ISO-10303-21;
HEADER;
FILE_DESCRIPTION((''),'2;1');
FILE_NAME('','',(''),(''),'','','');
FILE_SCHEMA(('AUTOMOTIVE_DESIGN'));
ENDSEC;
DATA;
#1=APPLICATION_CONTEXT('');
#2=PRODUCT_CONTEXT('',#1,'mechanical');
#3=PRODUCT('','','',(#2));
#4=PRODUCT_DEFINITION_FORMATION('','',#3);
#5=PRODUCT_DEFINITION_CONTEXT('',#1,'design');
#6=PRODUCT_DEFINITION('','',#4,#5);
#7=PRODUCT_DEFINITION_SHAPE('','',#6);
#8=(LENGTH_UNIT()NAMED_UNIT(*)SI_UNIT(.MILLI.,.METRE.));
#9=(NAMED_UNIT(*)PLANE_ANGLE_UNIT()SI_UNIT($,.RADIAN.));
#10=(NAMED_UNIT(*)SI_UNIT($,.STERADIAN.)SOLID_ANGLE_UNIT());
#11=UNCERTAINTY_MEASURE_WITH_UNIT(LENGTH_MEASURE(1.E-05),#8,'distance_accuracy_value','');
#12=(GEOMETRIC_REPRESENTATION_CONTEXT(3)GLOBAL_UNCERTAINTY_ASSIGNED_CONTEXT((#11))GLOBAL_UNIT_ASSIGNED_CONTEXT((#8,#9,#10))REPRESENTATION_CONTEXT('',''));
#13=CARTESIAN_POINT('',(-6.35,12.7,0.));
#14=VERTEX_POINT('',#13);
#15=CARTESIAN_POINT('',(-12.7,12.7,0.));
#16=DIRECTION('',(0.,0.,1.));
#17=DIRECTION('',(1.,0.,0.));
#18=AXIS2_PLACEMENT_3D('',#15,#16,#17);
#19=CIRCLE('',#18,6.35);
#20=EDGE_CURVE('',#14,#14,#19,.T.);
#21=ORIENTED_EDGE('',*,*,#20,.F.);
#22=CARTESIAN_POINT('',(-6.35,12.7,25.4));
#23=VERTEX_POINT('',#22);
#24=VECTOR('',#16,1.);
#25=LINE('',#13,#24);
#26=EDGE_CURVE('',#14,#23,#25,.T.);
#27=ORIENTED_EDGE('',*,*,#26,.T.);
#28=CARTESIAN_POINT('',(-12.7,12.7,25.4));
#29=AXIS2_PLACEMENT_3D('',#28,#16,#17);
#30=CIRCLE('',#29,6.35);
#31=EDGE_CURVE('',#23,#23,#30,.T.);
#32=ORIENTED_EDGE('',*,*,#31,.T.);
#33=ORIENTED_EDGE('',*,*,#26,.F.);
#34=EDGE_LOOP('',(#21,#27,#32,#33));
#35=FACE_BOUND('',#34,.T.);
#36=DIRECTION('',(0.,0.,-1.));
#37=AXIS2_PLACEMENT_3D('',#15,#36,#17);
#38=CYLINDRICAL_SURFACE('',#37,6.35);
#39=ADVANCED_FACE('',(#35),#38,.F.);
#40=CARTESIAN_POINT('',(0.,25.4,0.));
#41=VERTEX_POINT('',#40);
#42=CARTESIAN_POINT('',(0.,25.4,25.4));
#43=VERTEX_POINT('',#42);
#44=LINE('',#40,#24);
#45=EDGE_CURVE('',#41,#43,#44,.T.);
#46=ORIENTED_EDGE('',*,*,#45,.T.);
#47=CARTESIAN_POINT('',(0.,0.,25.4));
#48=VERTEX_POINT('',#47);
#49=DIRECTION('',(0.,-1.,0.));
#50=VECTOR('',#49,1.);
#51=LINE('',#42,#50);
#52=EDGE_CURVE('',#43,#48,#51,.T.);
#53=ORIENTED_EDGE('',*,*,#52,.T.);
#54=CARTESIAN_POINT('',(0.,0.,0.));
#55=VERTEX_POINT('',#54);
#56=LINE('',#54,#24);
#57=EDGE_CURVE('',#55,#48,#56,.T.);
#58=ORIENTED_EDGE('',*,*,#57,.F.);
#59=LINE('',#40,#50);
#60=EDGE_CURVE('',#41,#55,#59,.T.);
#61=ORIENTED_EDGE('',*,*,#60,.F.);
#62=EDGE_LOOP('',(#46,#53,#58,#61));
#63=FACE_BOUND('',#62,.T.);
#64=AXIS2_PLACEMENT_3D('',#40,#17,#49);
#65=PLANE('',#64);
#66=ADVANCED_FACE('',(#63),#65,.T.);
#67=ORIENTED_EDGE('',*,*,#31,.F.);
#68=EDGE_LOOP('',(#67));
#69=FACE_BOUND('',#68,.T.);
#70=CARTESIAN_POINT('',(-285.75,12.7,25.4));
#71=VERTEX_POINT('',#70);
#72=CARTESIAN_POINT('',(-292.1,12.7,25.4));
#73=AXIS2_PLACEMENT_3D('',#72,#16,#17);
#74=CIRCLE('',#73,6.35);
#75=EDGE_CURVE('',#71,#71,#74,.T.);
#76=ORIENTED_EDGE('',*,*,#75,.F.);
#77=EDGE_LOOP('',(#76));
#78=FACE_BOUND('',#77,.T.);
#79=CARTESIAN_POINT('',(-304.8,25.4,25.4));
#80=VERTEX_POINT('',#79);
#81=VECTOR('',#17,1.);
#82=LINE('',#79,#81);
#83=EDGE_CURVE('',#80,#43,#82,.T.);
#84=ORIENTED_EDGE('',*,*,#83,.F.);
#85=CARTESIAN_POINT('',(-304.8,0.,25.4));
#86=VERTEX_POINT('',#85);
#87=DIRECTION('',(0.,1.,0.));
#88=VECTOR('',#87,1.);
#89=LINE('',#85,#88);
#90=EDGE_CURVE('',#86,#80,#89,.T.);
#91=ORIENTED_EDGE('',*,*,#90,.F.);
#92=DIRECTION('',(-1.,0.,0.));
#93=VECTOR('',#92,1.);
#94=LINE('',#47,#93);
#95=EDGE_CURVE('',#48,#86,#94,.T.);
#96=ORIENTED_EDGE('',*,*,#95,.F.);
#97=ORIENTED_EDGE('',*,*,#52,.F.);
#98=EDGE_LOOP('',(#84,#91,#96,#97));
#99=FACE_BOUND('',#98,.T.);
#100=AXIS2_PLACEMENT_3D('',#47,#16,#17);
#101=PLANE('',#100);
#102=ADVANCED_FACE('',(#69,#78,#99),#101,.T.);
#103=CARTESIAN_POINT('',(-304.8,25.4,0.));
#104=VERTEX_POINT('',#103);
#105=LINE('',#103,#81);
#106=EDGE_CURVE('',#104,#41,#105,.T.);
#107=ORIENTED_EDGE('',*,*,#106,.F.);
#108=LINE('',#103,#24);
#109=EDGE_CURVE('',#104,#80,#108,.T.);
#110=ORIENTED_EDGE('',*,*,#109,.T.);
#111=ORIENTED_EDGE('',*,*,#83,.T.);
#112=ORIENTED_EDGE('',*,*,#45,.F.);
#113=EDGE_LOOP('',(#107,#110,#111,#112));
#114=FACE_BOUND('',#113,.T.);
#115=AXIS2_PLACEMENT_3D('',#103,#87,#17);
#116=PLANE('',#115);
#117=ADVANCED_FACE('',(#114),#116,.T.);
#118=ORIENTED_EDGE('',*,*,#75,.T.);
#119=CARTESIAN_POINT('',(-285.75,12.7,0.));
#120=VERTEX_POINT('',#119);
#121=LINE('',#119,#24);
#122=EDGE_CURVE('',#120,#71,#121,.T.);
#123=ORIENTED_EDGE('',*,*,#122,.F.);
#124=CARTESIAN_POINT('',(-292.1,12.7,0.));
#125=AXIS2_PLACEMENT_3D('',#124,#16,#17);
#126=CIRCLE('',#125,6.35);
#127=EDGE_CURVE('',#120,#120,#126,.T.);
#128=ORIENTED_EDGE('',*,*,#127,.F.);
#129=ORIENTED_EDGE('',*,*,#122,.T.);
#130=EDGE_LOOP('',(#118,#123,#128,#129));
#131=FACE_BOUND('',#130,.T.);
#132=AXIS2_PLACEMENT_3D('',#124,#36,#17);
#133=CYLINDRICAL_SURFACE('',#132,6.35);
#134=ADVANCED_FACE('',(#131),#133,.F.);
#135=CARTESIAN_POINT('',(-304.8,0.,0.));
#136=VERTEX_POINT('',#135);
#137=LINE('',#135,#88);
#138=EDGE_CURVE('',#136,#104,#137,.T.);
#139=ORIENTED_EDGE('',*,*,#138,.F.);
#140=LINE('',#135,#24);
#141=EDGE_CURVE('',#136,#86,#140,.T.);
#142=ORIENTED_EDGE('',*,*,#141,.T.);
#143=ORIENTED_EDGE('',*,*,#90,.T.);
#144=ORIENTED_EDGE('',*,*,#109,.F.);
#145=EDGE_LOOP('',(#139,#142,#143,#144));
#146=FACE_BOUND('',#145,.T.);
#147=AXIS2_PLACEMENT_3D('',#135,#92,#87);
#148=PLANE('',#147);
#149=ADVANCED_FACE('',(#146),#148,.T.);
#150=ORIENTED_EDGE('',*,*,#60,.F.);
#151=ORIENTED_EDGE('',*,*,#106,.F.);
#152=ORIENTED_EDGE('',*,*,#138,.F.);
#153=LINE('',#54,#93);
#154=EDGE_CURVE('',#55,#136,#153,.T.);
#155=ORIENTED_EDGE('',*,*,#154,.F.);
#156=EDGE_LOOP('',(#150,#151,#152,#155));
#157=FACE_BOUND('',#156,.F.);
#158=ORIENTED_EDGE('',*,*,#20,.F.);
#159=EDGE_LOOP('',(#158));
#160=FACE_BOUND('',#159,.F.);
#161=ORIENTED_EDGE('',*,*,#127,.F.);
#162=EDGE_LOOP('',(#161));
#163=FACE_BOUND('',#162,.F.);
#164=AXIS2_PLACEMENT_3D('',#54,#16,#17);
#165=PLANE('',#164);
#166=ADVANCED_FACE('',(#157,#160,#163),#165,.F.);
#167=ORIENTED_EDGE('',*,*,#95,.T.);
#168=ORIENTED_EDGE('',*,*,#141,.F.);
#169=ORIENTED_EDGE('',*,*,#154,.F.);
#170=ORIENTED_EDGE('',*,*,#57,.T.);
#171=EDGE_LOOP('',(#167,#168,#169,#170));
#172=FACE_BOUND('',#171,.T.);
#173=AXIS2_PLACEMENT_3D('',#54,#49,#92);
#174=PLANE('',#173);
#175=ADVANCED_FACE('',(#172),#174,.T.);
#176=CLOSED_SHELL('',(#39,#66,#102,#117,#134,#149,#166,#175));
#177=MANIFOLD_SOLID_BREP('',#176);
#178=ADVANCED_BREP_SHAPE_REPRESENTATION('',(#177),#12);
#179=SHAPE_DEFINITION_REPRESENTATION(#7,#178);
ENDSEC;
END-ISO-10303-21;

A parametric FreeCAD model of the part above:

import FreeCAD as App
import Part
import Sketcher
from FreeCAD import Vector
Q = App.Units.Quantity

doc = App.newDocument("Part")
body = doc.addObject("PartDesign::Body", "Body")

sketch1 = doc.addObject("Sketcher::SketchObject", "Sketch")
body.addObject(sketch1)
sketch1.AttachmentSupport = (doc.XY_Plane, [""])
sketch1.MapMode = "FlatFace"
sketch1.addGeometry(Part.LineSegment(Vector(-304.8, 0, 0), Vector(0, 0, 0)), False)
sketch1.addGeometry(Part.LineSegment(Vector(0, 0, 0), Vector(0, 25.4, 0)), False)
sketch1.addGeometry(Part.LineSegment(Vector(0, 25.4, 0), Vector(-304.8, 25.4, 0)), False)
sketch1.addGeometry(Part.LineSegment(Vector(-304.8, 25.4, 0), Vector(-304.8, 0, 0)), False)
sketch1.addGeometry(Part.Circle(Vector(-292.1, 12.7, 0), Vector(0, 0, 1), 6.35), False)
sketch1.addGeometry(Part.Circle(Vector(-12.7, 12.7, 0), Vector(0, 0, 1), 6.35), False)
sketch1.addConstraint(Sketcher.Constraint("Coincident", 0, 2, 1, 1))
sketch1.addConstraint(Sketcher.Constraint("Coincident", 1, 2, 2, 1))
sketch1.addConstraint(Sketcher.Constraint("Coincident", 2, 2, 3, 1))
sketch1.addConstraint(Sketcher.Constraint("Coincident", 3, 2, 0, 1))
sketch1.addConstraint(Sketcher.Constraint("Horizontal", 0))
sketch1.addConstraint(Sketcher.Constraint("Vertical", 1))
sketch1.addConstraint(Sketcher.Constraint("Horizontal", 2))
sketch1.addConstraint(Sketcher.Constraint("Vertical", 3))
sketch1.addConstraint(Sketcher.Constraint("Coincident", 0, 2, -1, 1))
sketch1.addConstraint(Sketcher.Constraint("Equal", 4, 5))
sketch1.addConstraint(Sketcher.Constraint("Horizontal", 4, 3, 5, 3))
sketch1.addConstraint(Sketcher.Constraint("Diameter", 4, Q("0.5 in")))
sketch1.addConstraint(Sketcher.Constraint("DistanceX", 0, 1, 0, 2, Q("12 in")))
sketch1.addConstraint(Sketcher.Constraint("DistanceY", 1, 1, 1, 2, Q("1 in")))
sketch1.addConstraint(Sketcher.Constraint("DistanceY", -1, 1, 4, 3, Q("0.5 in")))
sketch1.addConstraint(Sketcher.Constraint("DistanceX", 5, 3, -1, 1, Q("0.5 in")))
sketch1.addConstraint(Sketcher.Constraint("DistanceX", 2, 2, 4, 3, Q("0.5 in")))
pad1 = doc.addObject("PartDesign::Pad", "Pad")
body.addObject(pad1)
pad1.Profile = sketch1
pad1.Length = Q("1 in")

doc.recompute()
